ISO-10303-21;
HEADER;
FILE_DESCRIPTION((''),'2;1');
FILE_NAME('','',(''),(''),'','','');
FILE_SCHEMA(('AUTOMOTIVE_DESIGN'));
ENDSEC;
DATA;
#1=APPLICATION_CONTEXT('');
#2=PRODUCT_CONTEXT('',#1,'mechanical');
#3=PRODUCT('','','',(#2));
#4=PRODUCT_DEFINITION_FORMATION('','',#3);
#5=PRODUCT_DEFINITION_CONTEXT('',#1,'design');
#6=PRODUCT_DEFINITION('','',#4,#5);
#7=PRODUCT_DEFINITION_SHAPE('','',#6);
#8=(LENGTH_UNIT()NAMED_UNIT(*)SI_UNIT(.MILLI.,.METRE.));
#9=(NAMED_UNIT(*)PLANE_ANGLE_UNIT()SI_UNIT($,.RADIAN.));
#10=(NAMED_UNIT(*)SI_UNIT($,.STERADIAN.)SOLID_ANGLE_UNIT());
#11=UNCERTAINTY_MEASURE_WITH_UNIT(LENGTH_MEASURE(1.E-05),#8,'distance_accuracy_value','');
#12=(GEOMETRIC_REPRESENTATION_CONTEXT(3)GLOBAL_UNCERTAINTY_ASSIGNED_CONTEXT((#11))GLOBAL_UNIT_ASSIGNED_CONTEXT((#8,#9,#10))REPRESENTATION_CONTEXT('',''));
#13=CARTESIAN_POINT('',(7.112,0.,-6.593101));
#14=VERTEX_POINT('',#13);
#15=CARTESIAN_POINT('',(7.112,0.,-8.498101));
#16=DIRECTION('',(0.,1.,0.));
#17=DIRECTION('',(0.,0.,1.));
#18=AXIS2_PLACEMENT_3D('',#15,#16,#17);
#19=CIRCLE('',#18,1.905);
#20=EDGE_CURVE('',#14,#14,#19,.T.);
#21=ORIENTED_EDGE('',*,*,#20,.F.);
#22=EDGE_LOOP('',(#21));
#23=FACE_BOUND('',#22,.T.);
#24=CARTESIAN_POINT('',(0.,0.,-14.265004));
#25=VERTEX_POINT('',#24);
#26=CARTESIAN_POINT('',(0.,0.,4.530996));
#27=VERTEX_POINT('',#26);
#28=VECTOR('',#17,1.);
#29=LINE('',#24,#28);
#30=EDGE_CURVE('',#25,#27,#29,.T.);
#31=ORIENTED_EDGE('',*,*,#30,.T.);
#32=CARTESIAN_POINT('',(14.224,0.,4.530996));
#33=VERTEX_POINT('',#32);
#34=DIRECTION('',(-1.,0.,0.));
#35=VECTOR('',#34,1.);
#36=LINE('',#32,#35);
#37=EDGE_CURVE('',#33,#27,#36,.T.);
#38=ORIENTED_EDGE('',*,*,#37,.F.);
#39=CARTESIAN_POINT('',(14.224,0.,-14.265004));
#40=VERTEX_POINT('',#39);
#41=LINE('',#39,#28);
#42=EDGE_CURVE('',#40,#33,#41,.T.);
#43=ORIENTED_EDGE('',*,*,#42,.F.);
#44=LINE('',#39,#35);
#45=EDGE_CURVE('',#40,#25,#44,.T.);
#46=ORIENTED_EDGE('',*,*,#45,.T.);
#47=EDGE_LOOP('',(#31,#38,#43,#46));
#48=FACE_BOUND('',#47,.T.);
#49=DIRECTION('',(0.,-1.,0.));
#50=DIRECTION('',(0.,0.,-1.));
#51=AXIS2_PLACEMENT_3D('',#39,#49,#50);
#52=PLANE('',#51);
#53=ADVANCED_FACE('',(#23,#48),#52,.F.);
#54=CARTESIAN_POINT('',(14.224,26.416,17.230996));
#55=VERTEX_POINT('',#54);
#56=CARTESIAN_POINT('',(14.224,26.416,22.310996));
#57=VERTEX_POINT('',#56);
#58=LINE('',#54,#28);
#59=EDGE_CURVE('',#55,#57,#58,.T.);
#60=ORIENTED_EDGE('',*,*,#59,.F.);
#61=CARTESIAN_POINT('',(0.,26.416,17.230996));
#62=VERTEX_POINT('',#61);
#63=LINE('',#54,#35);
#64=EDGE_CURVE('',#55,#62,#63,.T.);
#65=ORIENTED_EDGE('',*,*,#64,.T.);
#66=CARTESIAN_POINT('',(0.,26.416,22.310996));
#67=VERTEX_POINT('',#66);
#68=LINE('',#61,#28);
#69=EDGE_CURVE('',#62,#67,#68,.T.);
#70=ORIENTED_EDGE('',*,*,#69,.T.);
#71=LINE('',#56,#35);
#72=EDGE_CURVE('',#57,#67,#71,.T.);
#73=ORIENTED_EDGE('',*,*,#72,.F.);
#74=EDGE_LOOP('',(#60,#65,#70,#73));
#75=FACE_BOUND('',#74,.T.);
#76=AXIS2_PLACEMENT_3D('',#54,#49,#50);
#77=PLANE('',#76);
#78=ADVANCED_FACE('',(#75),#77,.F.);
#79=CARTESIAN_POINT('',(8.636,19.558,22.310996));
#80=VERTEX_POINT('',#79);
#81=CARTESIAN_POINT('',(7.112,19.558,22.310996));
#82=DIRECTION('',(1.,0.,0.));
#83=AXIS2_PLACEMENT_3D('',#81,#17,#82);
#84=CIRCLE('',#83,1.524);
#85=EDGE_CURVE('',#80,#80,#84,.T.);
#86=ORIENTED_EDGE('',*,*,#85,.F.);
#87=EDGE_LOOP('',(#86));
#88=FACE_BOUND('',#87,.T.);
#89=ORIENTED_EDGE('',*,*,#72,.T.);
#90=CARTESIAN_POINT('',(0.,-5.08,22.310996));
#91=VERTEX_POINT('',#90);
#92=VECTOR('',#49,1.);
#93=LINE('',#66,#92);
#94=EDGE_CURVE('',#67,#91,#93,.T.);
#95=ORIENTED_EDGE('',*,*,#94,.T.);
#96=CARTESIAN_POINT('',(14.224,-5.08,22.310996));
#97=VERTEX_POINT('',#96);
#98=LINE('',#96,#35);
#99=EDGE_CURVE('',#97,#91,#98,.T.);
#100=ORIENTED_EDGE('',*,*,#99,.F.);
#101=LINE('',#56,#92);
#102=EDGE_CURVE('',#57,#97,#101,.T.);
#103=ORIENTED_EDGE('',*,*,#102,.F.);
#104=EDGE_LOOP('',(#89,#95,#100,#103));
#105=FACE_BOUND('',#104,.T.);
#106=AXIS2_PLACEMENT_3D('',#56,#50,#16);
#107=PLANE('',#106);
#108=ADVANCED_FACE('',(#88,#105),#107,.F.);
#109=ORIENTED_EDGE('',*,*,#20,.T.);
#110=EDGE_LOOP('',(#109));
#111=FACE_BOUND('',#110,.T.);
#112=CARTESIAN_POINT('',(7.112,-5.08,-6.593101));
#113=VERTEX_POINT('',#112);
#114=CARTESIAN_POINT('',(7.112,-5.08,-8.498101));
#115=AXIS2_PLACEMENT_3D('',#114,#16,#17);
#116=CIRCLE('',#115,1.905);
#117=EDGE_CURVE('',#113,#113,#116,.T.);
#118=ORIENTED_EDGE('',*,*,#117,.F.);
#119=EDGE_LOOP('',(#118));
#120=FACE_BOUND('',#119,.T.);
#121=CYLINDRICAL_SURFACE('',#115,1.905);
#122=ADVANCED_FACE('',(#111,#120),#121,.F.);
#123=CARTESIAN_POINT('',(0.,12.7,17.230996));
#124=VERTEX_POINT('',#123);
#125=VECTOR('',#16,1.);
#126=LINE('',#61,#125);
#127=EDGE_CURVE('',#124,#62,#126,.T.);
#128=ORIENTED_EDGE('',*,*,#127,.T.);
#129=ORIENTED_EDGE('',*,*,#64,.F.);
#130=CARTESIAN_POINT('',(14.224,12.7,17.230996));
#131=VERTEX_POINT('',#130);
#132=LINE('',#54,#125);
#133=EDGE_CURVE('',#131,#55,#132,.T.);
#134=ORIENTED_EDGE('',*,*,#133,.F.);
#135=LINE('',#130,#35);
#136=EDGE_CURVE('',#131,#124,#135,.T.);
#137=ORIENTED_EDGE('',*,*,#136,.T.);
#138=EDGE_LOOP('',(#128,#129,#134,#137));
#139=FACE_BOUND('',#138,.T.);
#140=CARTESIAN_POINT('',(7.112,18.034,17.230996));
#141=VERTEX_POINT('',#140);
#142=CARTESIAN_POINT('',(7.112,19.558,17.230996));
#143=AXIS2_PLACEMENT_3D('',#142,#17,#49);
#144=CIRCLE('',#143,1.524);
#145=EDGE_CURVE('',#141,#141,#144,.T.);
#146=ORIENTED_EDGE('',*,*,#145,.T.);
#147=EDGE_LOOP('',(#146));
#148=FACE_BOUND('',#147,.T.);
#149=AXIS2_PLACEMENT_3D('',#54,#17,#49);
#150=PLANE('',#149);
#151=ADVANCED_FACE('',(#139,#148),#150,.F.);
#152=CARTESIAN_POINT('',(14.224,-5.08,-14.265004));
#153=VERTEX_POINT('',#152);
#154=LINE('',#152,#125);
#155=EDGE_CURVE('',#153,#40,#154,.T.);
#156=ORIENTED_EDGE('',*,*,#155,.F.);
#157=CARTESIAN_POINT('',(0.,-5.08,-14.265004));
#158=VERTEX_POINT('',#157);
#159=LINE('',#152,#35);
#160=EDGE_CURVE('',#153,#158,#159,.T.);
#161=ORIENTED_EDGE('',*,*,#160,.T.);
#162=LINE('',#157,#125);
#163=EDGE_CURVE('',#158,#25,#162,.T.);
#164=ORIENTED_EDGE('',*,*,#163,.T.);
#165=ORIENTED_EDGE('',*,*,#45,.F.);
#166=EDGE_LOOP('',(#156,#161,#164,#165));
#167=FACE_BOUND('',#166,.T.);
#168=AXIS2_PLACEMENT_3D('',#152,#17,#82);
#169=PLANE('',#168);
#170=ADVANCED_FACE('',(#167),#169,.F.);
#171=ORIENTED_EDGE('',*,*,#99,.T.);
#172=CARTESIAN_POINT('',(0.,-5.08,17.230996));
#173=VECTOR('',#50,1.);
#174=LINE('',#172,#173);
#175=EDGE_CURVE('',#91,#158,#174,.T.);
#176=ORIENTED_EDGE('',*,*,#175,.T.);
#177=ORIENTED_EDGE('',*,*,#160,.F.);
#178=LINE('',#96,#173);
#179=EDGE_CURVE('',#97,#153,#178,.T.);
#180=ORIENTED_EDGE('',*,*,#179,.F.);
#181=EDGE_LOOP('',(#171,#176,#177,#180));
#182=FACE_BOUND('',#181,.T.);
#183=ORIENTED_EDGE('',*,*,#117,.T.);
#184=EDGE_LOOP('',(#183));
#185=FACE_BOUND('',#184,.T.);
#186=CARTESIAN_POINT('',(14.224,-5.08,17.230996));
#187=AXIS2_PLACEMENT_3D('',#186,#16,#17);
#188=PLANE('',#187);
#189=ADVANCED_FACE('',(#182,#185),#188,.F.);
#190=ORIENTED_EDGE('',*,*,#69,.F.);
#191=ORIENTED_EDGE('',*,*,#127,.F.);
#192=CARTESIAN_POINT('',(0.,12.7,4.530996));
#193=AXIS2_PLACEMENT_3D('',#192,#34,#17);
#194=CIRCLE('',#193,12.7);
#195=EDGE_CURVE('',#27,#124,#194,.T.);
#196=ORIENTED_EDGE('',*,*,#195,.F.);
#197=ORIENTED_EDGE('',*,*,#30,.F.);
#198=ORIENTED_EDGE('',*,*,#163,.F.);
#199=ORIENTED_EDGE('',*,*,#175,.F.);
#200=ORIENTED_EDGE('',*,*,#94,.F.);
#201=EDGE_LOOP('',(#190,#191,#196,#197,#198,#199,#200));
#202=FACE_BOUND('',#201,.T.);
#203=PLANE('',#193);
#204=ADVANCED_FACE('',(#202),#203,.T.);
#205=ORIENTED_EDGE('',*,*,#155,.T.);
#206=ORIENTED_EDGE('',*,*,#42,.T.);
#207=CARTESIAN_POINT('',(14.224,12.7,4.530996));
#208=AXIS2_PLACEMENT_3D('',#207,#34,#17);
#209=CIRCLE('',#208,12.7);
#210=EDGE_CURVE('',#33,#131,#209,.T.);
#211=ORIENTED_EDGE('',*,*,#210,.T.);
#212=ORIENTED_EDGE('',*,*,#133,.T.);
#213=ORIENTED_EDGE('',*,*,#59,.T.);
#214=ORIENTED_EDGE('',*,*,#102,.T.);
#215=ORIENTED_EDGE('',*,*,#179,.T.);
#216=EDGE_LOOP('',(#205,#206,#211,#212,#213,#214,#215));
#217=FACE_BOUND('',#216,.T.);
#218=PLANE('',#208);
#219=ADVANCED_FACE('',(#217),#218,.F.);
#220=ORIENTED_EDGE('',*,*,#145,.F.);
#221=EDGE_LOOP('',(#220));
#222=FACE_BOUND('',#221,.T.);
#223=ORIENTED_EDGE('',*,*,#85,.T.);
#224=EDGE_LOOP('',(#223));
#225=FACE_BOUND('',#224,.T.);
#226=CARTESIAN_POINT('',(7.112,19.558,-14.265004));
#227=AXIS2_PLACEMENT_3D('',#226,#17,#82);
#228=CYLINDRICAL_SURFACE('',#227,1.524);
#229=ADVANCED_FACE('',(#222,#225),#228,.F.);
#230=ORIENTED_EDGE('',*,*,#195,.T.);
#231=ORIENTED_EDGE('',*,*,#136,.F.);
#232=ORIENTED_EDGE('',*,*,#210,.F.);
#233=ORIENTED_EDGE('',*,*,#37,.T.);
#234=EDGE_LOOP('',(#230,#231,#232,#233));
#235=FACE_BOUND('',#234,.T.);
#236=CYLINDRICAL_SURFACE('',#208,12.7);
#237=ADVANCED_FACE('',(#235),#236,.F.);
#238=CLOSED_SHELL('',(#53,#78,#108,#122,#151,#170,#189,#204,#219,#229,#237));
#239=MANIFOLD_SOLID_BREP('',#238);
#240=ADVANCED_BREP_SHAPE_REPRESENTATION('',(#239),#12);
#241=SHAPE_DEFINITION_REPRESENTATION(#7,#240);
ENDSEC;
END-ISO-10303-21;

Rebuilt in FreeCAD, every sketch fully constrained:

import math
import FreeCAD as App
import Part
import Sketcher
from FreeCAD import Vector
Q = App.Units.Quantity

doc = App.newDocument("Part")
params = doc.addObject("Spreadsheet::Sheet", "Params")
for row, (alias, value) in enumerate([
    ("sketch1_radius", "0.5 in"),
    ("sketch1_width", "0.2 in"),
    ("sketch1_width2", "0.54 in"),
    ("sketch1_height", "1.44 in"),
    ("pad1_length", "0.56 in"),
    ("sketch2_diameter", "0.12 in"),
    ("sketch3_diameter", "0.15 in"),
], start=1):
    params.set(f"A{row}", alias)
    params.set(f"B{row}", "=" + value)
    params.setAlias(f"B{row}", alias)

body = doc.addObject("PartDesign::Body", "Body")

# Sketch on YZ plane
sketch1 = doc.addObject("Sketcher::SketchObject", "Sketch")
body.addObject(sketch1)
sketch1.AttachmentSupport = (doc.YZ_Plane, [""])
sketch1.MapMode = "FlatFace"
sketch1.addGeometry(Part.LineSegment(Vector(12.7, 17.230996, 0), Vector(26.416, 17.230996, 0)), False)
sketch1.addGeometry(Part.LineSegment(Vector(26.416, 17.230996, 0), Vector(26.416, 22.310996, 0)), False)
sketch1.addGeometry(Part.LineSegment(Vector(26.416, 22.310996, 0), Vector(-5.08, 22.310996, 0)), False)
sketch1.addGeometry(Part.LineSegment(Vector(-5.08, 22.310996, 0), Vector(-5.08, -14.265004, 0)), False)
sketch1.addGeometry(Part.LineSegment(Vector(-5.08, -14.265004, 0), Vector(0, -14.265004, 0)), False)
sketch1.addGeometry(Part.LineSegment(Vector(0, -14.265004, 0), Vector(0, 4.530996, 0)), False)
sketch1.addGeometry(Part.ArcOfCircle(Part.Circle(Vector(12.7, 4.530996, 0), Vector(0, 0, 1), 12.7), math.radians(90), math.radians(180)), False)
sketch1.addConstraint(Sketcher.Constraint("Coincident", 0, 2, 1, 1))
sketch1.addConstraint(Sketcher.Constraint("Coincident", 1, 2, 2, 1))
sketch1.addConstraint(Sketcher.Constraint("Coincident", 2, 2, 3, 1))
sketch1.addConstraint(Sketcher.Constraint("Coincident", 3, 2, 4, 1))
sketch1.addConstraint(Sketcher.Constraint("Coincident", 4, 2, 5, 1))
sketch1.addConstraint(Sketcher.Constraint("Tangent", 5, 2, 6, 2))
sketch1.addConstraint(Sketcher.Constraint("Tangent", 6, 1, 0, 1))
sketch1.addConstraint(Sketcher.Constraint("Horizontal", 0))
sketch1.addConstraint(Sketcher.Constraint("Vertical", 1))
sketch1.addConstraint(Sketcher.Constraint("Horizontal", 2))
sketch1.addConstraint(Sketcher.Constraint("Vertical", 3))
sketch1.addConstraint(Sketcher.Constraint("Horizontal", 4))
sketch1.addConstraint(Sketcher.Constraint("Vertical", 5))
sketch1.addConstraint(Sketcher.Constraint("PointOnObject", 4, 2, -2))
sketch1.addConstraint(Sketcher.Constraint("Equal", 4, 1))
sketch1.addConstraint(Sketcher.Constraint("Radius", 6, Q("0.5 in")))
sketch1.addConstraint(Sketcher.Constraint("DistanceX", 4, 1, 4, 2, Q("0.2 in")))
sketch1.addConstraint(Sketcher.Constraint("DistanceX", 0, 1, 0, 2, Q("0.54 in")))
sketch1.addConstraint(Sketcher.Constraint("DistanceY", 3, 2, 3, 1, Q("1.44 in")))
sketch1.addConstraint(Sketcher.Constraint("DistanceY", -1, 1, 6, 3, 4.530996))
sketch1.setExpression("Constraints[15]", "Params.sketch1_radius")
sketch1.setExpression("Constraints[16]", "Params.sketch1_width")
sketch1.setExpression("Constraints[17]", "Params.sketch1_width2")
sketch1.setExpression("Constraints[18]", "Params.sketch1_height")
pad1 = doc.addObject("PartDesign::Pad", "Pad")
body.addObject(pad1)
pad1.Profile = sketch1
pad1.setExpression("Length", "Params.pad1_length")

# Sketch on XY plane
sketch2 = doc.addObject("Sketcher::SketchObject", "Sketch001")
body.addObject(sketch2)
sketch2.AttachmentSupport = (doc.XY_Plane, [""])
sketch2.MapMode = "FlatFace"
sketch2.AttachmentOffset = App.Placement(Vector(0, 0, 22.310996), App.Rotation())
sketch2.addGeometry(Part.Circle(Vector(7.112, 19.558, 0), Vector(0, 0, 1), 1.524), False)
sketch2.addConstraint(Sketcher.Constraint("Diameter", 0, Q("0.12 in")))
sketch2.addConstraint(Sketcher.Constraint("DistanceX", -1, 1, 0, 3, Q("0.28 in")))
sketch2.addConstraint(Sketcher.Constraint("DistanceY", -1, 1, 0, 3, Q("0.77 in")))
sketch2.setExpression("Constraints[0]", "Params.sketch2_diameter")
pocket1 = doc.addObject("PartDesign::Pocket", "Pocket")
body.addObject(pocket1)
pocket1.Profile = sketch2
pocket1.Type = "ThroughAll"

# Sketch on XZ plane
sketch3 = doc.addObject("Sketcher::SketchObject", "Sketch002")
body.addObject(sketch3)
sketch3.AttachmentSupport = (doc.XZ_Plane, [""])
sketch3.MapMode = "FlatFace"
sketch3.addGeometry(Part.Circle(Vector(7.112, -8.498101, 0), Vector(0, 0, 1), 1.905), False)
sketch3.addConstraint(Sketcher.Constraint("Diameter", 0, Q("0.15 in")))
sketch3.addConstraint(Sketcher.Constraint("DistanceX", -1, 1, 0, 3, Q("0.28 in")))
sketch3.addConstraint(Sketcher.Constraint("DistanceY", 0, 3, -1, 1, 8.498101))
sketch3.setExpression("Constraints[0]", "Params.sketch3_diameter")
pocket2 = doc.addObject("PartDesign::Pocket", "Pocket001")
body.addObject(pocket2)
pocket2.Profile = sketch3
pocket2.Type = "ThroughAll"
pocket2.Reversed = True

doc.recompute()
